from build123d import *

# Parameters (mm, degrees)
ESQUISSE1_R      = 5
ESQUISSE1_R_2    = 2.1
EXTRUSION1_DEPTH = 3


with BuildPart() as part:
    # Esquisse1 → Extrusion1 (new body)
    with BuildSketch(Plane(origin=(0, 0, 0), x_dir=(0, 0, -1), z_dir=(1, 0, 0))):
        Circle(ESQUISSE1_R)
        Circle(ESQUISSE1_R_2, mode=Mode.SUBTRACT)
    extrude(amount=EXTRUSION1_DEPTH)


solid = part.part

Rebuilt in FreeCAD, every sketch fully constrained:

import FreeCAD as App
import Part
import Sketcher
from FreeCAD import Vector

doc = App.newDocument("Part")
params = doc.addObject("Spreadsheet::Sheet", "Params")
for row, (alias, value) in enumerate([
    ("sketch1_diameter", "10 mm"),
    ("sketch1_diameter2", "4.2 mm"),
    ("pad1_length", "3 mm"),
], start=1):
    params.set(f"A{row}", alias)
    params.set(f"B{row}", "=" + value)
    params.setAlias(f"B{row}", alias)

body = doc.addObject("PartDesign::Body", "Body")

# Sketch on YZ plane
sketch1 = doc.addObject("Sketcher::SketchObject", "Sketch")
body.addObject(sketch1)
sketch1.AttachmentSupport = (doc.YZ_Plane, [""])
sketch1.MapMode = "FlatFace"
sketch1.addGeometry([
    Part.Circle(Vector(0, 0, 0), Vector(0, 0, 1), 5),
    Part.Circle(Vector(0, 0, 0), Vector(0, 0, 1), 2.1),
], False)
sketch1.addConstraint([
    Sketcher.Constraint("Coincident", 0, 3, -1, 1),
    Sketcher.Constraint("Coincident", 1, 3, -1, 1),
    Sketcher.Constraint("Diameter", 0, 10.0),
    Sketcher.Constraint("Diameter", 1, 4.2),
])
sketch1.setExpression("Constraints[2]", "Params.sketch1_diameter")
sketch1.setExpression("Constraints[3]", "Params.sketch1_diameter2")
pad1 = doc.addObject("PartDesign::Pad", "Pad")
body.addObject(pad1)
pad1.Profile = sketch1
pad1.setExpression("Length", "Params.pad1_length")

doc.recompute()
